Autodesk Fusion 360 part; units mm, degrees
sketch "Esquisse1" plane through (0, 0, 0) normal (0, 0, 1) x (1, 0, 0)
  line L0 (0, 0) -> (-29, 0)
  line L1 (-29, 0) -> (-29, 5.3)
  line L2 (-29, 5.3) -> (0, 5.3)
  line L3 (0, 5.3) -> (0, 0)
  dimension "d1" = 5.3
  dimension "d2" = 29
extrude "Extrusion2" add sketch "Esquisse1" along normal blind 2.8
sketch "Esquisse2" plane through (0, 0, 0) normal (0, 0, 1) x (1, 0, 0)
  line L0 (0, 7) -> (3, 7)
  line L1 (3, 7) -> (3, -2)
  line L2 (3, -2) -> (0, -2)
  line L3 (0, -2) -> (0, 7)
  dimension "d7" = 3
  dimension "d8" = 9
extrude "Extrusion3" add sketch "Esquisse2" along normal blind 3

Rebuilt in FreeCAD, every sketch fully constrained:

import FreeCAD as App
import Part
import Sketcher
Q = App.Units.Quantity

doc = App.newDocument("Part")
body = doc.addObject("PartDesign::Body", "Body")

sketch1 = body.newObject("Sketcher::SketchObject", "Sketch")
sketch1.AttachmentSupport = (doc.getObject("XY_Plane"), [""])
sketch1.MapMode = "FlatFace"
sketch1.addGeometry([
    Part.LineSegment(App.Vector(-29, 0, 0), App.Vector(0, 0, 0)),
    Part.LineSegment(App.Vector(0, 0, 0), App.Vector(0, 5, 0)),
    Part.LineSegment(App.Vector(0, 5, 0), App.Vector(-29, 5, 0)),
    Part.LineSegment(App.Vector(-29, 5, 0), App.Vector(-29, 0, 0)),
], False)
sketch1.addConstraint([
    Sketcher.Constraint("Coincident", 0, 2, 1, 1),
    Sketcher.Constraint("Coincident", 1, 2, 2, 1),
    Sketcher.Constraint("Coincident", 2, 2, 3, 1),
    Sketcher.Constraint("Coincident", 3, 2, 0, 1),
    Sketcher.Constraint("Horizontal", 0),
    Sketcher.Constraint("Vertical", 1),
    Sketcher.Constraint("Horizontal", 2),
    Sketcher.Constraint("Vertical", 3),
    Sketcher.Constraint("Coincident", 0, 2, -1, 1),
    Sketcher.Constraint("DistanceX", 0, 1, 0, 2, Q("29 mm")),
    Sketcher.Constraint("DistanceY", 1, 1, 1, 2, Q("5.3 mm")),
])
pad1 = body.newObject("PartDesign::Pad", "Pad")
pad1.Profile = sketch1
pad1.Length = 2.8

sketch2 = body.newObject("Sketcher::SketchObject", "Sketch001")
sketch2.AttachmentSupport = (doc.getObject("XY_Plane"), [""])
sketch2.MapMode = "FlatFace"
sketch2.addGeometry([
    Part.LineSegment(App.Vector(3, 7, 0), App.Vector(0, 7, 0)),
    Part.LineSegment(App.Vector(0, 7, 0), App.Vector(0, -2, 0)),
    Part.LineSegment(App.Vector(0, -2, 0), App.Vector(3, -2, 0)),
    Part.LineSegment(App.Vector(3, -2, 0), App.Vector(3, 7, 0)),
], False)
sketch2.addConstraint([
    Sketcher.Constraint("Coincident", 0, 2, 1, 1),
    Sketcher.Constraint("Coincident", 1, 2, 2, 1),
    Sketcher.Constraint("Coincident", 2, 2, 3, 1),
    Sketcher.Constraint("Coincident", 3, 2, 0, 1),
    Sketcher.Constraint("Horizontal", 0),
    Sketcher.Constraint("Vertical", 1),
    Sketcher.Constraint("Horizontal", 2),
    Sketcher.Constraint("Vertical", 3),
    Sketcher.Constraint("PointOnObject", 0, 2, -2),
    Sketcher.Constraint("DistanceX", 0, 2, 0, 1, Q("3 mm")),
    Sketcher.Constraint("DistanceY", 1, 2, 1, 1, Q("9 mm")),
    Sketcher.Constraint("DistanceY", -1, 1, 0, 2, Q("7 mm")),
])
pad2 = body.newObject("PartDesign::Pad", "Pad001")
pad2.Profile = sketch2
pad2.Length = 3

doc.recompute()
